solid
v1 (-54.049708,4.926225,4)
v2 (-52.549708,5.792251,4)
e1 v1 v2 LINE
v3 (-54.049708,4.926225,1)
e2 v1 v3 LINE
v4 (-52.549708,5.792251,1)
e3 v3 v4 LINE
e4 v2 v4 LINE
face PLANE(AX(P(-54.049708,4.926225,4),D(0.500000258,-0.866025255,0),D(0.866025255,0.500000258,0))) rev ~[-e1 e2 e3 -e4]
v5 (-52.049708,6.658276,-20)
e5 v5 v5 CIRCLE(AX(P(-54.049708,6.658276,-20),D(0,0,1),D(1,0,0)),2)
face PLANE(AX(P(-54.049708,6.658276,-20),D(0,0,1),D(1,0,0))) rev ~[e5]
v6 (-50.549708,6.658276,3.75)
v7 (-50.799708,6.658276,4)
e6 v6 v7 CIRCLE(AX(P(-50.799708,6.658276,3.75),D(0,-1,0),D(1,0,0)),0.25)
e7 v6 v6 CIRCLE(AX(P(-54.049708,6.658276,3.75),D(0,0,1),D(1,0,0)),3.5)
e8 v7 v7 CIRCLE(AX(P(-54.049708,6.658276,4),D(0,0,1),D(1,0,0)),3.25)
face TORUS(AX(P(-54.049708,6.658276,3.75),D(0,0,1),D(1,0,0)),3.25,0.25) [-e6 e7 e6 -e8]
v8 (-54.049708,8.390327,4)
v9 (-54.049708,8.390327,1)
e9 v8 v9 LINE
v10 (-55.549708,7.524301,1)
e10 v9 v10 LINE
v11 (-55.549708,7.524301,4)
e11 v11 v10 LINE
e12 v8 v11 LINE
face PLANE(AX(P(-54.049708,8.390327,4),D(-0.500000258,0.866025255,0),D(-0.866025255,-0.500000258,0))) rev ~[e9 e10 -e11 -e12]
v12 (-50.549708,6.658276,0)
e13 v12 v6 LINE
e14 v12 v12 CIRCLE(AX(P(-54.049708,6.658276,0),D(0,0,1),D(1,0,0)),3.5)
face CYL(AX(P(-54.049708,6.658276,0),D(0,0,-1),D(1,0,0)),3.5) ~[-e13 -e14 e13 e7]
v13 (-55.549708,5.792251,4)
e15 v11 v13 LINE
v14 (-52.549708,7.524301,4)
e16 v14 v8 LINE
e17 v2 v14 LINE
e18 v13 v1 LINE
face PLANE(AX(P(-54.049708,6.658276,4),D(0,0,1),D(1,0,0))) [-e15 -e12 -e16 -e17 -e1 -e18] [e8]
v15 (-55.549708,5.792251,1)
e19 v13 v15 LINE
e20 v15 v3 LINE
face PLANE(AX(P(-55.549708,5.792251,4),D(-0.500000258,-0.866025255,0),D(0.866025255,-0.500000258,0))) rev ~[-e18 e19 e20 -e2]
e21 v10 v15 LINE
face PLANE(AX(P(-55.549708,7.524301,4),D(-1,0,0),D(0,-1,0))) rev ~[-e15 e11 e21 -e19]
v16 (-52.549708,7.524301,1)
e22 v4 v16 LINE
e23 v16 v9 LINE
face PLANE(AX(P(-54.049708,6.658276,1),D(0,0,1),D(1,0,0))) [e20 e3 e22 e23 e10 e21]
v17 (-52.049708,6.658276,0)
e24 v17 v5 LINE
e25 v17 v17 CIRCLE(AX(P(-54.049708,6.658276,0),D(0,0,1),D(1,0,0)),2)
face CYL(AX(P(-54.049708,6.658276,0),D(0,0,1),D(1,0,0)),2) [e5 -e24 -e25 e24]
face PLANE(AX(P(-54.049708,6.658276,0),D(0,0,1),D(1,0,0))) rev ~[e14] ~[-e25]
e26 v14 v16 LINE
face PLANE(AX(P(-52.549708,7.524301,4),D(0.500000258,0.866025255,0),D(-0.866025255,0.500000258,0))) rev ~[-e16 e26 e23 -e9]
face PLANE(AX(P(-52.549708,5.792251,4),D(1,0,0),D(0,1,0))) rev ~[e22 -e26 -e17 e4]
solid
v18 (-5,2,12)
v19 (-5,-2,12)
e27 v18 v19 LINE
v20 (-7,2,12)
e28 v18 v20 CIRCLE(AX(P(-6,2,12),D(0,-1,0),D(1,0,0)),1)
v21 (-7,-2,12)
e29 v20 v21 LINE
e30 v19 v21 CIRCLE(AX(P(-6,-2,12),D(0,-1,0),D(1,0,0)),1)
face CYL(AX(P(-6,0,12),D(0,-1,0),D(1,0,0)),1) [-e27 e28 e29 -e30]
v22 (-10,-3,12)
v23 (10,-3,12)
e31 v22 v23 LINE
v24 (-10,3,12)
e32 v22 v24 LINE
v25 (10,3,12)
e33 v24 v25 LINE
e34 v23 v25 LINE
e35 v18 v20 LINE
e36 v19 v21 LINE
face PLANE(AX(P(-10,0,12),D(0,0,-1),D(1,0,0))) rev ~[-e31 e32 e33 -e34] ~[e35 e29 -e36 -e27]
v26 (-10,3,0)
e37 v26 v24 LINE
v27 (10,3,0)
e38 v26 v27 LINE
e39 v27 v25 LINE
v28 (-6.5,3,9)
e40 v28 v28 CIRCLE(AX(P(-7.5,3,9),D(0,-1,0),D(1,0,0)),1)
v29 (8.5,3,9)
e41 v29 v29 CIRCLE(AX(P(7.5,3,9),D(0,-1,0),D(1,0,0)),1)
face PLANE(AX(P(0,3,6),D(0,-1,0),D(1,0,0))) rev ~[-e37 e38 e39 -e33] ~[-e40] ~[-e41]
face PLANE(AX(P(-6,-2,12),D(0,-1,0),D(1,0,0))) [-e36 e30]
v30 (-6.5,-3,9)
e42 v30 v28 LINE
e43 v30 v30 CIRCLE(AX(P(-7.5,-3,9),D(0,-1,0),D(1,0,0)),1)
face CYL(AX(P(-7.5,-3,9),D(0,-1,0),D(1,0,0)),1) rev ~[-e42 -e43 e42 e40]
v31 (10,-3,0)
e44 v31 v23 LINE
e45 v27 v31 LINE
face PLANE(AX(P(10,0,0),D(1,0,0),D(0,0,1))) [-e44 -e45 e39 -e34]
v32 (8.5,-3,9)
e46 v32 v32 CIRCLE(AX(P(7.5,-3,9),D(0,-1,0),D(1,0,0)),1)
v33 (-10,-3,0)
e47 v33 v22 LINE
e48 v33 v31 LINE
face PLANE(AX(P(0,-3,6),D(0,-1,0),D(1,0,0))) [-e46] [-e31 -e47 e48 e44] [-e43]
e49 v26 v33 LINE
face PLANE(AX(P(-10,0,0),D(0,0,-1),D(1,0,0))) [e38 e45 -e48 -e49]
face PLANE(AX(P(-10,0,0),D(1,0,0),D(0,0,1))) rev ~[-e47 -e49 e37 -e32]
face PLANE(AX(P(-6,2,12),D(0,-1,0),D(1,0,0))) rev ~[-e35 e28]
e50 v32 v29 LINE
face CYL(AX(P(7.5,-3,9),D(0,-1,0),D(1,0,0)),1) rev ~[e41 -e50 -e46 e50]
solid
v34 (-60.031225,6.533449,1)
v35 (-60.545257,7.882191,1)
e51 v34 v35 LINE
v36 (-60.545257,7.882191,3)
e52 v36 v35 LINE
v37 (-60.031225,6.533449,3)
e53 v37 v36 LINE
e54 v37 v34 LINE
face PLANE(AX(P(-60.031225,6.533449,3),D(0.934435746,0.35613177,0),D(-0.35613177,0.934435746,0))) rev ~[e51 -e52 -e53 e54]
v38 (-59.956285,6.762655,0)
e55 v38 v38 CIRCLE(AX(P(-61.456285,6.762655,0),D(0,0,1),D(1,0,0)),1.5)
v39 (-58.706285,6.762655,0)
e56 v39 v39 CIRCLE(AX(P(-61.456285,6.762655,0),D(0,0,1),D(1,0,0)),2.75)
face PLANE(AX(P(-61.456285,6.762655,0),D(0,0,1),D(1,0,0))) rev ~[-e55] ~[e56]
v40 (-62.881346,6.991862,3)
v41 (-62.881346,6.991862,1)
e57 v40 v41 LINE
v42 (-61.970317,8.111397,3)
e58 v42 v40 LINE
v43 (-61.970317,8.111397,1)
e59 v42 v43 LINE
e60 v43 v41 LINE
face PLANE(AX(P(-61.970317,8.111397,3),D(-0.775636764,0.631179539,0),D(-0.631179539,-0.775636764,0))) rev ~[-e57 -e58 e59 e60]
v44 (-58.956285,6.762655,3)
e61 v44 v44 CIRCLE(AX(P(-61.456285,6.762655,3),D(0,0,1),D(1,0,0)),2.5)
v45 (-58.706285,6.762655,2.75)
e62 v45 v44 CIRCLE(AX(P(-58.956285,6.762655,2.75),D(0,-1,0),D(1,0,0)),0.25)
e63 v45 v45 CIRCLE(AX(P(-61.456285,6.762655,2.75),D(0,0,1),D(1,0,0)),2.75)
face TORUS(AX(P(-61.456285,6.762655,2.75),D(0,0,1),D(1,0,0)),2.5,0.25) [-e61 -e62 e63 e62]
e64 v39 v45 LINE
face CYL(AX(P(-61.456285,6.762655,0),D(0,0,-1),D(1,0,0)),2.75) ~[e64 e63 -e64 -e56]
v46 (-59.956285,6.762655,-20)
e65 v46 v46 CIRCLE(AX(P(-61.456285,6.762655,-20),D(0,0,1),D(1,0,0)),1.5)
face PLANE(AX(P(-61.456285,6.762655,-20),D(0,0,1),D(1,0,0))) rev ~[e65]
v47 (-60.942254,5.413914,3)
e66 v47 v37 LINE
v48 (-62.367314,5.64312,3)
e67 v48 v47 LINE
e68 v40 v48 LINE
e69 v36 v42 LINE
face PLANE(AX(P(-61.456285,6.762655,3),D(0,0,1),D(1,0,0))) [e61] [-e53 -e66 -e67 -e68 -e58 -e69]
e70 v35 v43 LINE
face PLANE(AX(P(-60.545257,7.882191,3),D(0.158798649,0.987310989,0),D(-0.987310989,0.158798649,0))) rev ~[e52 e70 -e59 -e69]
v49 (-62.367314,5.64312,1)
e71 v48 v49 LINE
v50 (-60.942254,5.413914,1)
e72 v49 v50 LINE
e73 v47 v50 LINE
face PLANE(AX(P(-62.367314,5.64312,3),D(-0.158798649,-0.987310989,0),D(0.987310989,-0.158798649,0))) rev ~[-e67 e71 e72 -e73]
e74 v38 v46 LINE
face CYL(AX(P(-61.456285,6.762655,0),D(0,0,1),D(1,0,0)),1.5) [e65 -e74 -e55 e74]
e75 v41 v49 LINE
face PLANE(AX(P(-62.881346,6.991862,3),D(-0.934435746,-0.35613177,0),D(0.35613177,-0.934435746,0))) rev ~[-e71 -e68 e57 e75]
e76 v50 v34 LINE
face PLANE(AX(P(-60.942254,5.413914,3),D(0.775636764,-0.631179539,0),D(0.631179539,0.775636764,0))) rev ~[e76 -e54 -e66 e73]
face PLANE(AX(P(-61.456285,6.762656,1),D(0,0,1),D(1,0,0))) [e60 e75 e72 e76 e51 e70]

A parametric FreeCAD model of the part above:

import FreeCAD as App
import Part
import Sketcher
from FreeCAD import Vector
Q = App.Units.Quantity


def edges_at(feature, points):
    """Names of the edges that pass closest to the given points."""
    edges = feature.Shape.Edges
    near = lambda p: min(range(len(edges)), key=lambda i: edges[i].distToShape(Part.Vertex(*p))[0])
    return sorted({f"Edge{near(p) + 1}" for p in points})


def add_polygon(sketch, points):
    """Adds a closed chain of lines whose ends are joined by coincident constraints."""
    first, n = sketch.GeometryCount, len(points)
    for a, b in zip(points, points[1:] + points[:1]):
        sketch.addGeometry(Part.LineSegment(App.Vector(*a, 0), App.Vector(*b, 0)), False)
    for i in range(n):
        sketch.addConstraint(Sketcher.Constraint("Coincident", first + i, 2, first + (i + 1) % n, 1))

doc = App.newDocument("Part")
body = doc.addObject("PartDesign::Body", "Body")

# Sketch on XZ plane
sketch1 = doc.addObject("Sketcher::SketchObject", "Sketch")
body.addObject(sketch1)
sketch1.AttachmentSupport = (doc.XZ_Plane, [""])
sketch1.MapMode = "FlatFace"
add_polygon(sketch1, [(-10, 12), (-10, 0), (10, 0), (10, 12)])  # lines 0-3
sketch1.addConstraint(Sketcher.Constraint("Vertical", 0))
sketch1.addConstraint(Sketcher.Constraint("Horizontal", 1))
sketch1.addConstraint(Sketcher.Constraint("Vertical", 2))
sketch1.addConstraint(Sketcher.Constraint("Horizontal", 3))
sketch1.addConstraint(Sketcher.Constraint("Symmetric", 0, 2, 1, 2, -1, 1))
sketch1.addConstraint(Sketcher.Constraint("DistanceX", 1, 1, 1, 2, Q("20 mm")))
sketch1.addConstraint(Sketcher.Constraint("DistanceY", 0, 2, 0, 1, Q("12 mm")))
pad1 = doc.addObject("PartDesign::Pad", "Pad")
body.addObject(pad1)
pad1.Profile = sketch1
pad1.Length = 6
pad1.Midplane = True

# Sketch on XZ plane
sketch2 = doc.addObject("Sketcher::SketchObject", "Sketch001")
body.addObject(sketch2)
sketch2.AttachmentSupport = (doc.XZ_Plane, [""])
sketch2.MapMode = "FlatFace"
sketch2.addGeometry(Part.Circle(Vector(-6, 12, 0), Vector(0, 0, 1), 1), False)
sketch2.addConstraint(Sketcher.Constraint("Diameter", 0, Q("2 mm")))
sketch2.addConstraint(Sketcher.Constraint("DistanceX", 0, 3, -1, 1, Q("6 mm")))
sketch2.addConstraint(Sketcher.Constraint("DistanceY", -1, 1, 0, 3, Q("12 mm")))
pad2 = doc.addObject("PartDesign::Pad", "Pad001")
body.addObject(pad2)
pad2.Profile = sketch2
pad2.Length = 4
pad2.Midplane = True

# Sketch on XZ plane
sketch3 = doc.addObject("Sketcher::SketchObject", "Sketch002")
body.addObject(sketch3)
sketch3.AttachmentSupport = (doc.XZ_Plane, [""])
sketch3.MapMode = "FlatFace"
sketch3.AttachmentOffset = App.Placement(Vector(0, 0, 3), App.Rotation())
sketch3.addGeometry(Part.Circle(Vector(-7.5, 9, 0), Vector(0, 0, 1), 1), False)
sketch3.addGeometry(Part.Circle(Vector(7.5, 9, 0), Vector(0, 0, 1), 1), False)
sketch3.addConstraint(Sketcher.Constraint("Equal", 0, 1))
sketch3.addConstraint(Sketcher.Constraint("Symmetric", 0, 3, 1, 3, -2))
sketch3.addConstraint(Sketcher.Constraint("Diameter", 0, Q("2 mm")))
sketch3.addConstraint(Sketcher.Constraint("DistanceY", -1, 1, 0, 3, Q("9 mm")))
sketch3.addConstraint(Sketcher.Constraint("DistanceX", 0, 3, 1, 3, Q("15 mm")))
pocket1 = doc.addObject("PartDesign::Pocket", "Pocket")
body.addObject(pocket1)
pocket1.Profile = sketch3
pocket1.Type = "ThroughAll"
body2 = doc.addObject("PartDesign::Body", "Body001")

# Sketch on XY plane
sketch4 = doc.addObject("Sketcher::SketchObject", "Sketch003")
body2.addObject(sketch4)
sketch4.AttachmentSupport = (doc.getObject("XY_Plane001"), [""])
sketch4.MapMode = "FlatFace"
sketch4.addGeometry(Part.Circle(Vector(-61.456285, 6.762655, 0), Vector(0, 0, 1), 1.5), False)
sketch4.addConstraint(Sketcher.Constraint("Diameter", 0, Q("3 mm")))
sketch4.addConstraint(Sketcher.Constraint("DistanceX", 0, 3, -1, 1, Q("61.456285 mm")))
sketch4.addConstraint(Sketcher.Constraint("DistanceY", -1, 1, 0, 3, Q("6.762655 mm")))
pad3 = doc.addObject("PartDesign::Pad", "Pad002")
body2.addObject(pad3)
pad3.Profile = sketch4
pad3.Length = 20
pad3.Reversed = True

# Sketch on XY plane
sketch5 = doc.addObject("Sketcher::SketchObject", "Sketch004")
body2.addObject(sketch5)
sketch5.AttachmentSupport = (doc.getObject("XY_Plane001"), [""])
sketch5.MapMode = "FlatFace"
sketch5.addGeometry(Part.Circle(Vector(-61.456285, 6.762655, 0), Vector(0, 0, 1), 2.75), False)
sketch5.addConstraint(Sketcher.Constraint("Diameter", 0, Q("5.5 mm")))
sketch5.addConstraint(Sketcher.Constraint("DistanceX", 0, 3, -1, 1, Q("61.456285 mm")))
sketch5.addConstraint(Sketcher.Constraint("DistanceY", -1, 1, 0, 3, Q("6.762655 mm")))
pad4 = doc.addObject("PartDesign::Pad", "Pad003")
body2.addObject(pad4)
pad4.Profile = sketch5
pad4.Length = 3

# Sketch on XY plane
sketch6 = doc.addObject("Sketcher::SketchObject", "Sketch005")
body2.addObject(sketch6)
sketch6.AttachmentSupport = (doc.getObject("XY_Plane001"), [""])
sketch6.MapMode = "FlatFace"
sketch6.AttachmentOffset = App.Placement(Vector(0, 0, 3), App.Rotation())
add_polygon(sketch6, [(-60.942254, 5.413914), (-60.031225, 6.533449), (-60.545257, 7.882191), (-61.970317, 8.111397), (-62.881346, 6.991862), (-62.367314, 5.64312)])  # lines 0-5
sketch6.addConstraint(Sketcher.Constraint("Parallel", 0, 3))
sketch6.addConstraint(Sketcher.Constraint("Parallel", 1, 4))
sketch6.addConstraint(Sketcher.Constraint("Parallel", 2, 5))
sketch6.addConstraint(Sketcher.Constraint("Equal", 0, 1))
sketch6.addConstraint(Sketcher.Constraint("Equal", 1, 2))
sketch6.addConstraint(Sketcher.Constraint("Equal", 2, 3))
sketch6.addConstraint(Sketcher.Constraint("DistanceY", -1, 1, 0, 2, Q("6.533449 mm")))
sketch6.addConstraint(Sketcher.Constraint("DistanceY", -1, 1, 1, 2, Q("7.882191 mm")))
sketch6.addConstraint(Sketcher.Constraint("DistanceY", -1, 1, 4, 2, Q("5.64312 mm")))
sketch6.addConstraint(Sketcher.Constraint("DistanceX", 2, 2, 1, 2, Q("1.42506 mm")))
sketch6.addConstraint(Sketcher.Constraint("DistanceY", 0, 2, 2, 2, Q("1.577948 mm")))
sketch6.addConstraint(Sketcher.Constraint("DistanceX", 0, 2, -1, 1, Q("60.031225 mm")))
pocket2 = doc.addObject("PartDesign::Pocket", "Pocket001")
body2.addObject(pocket2)
pocket2.Profile = sketch6
pocket2.Length = 2
doc.recompute()

fillet = doc.addObject("PartDesign::Fillet", "Fillet")
body2.addObject(fillet)
fillet.Base = (pocket2, edges_at(pocket2, [(-64.206, 6.763, 3)]))
fillet.Radius = 0.25
body3 = doc.addObject("PartDesign::Body", "Body002")

# Sketch on XY plane
sketch7 = doc.addObject("Sketcher::SketchObject", "Sketch006")
body3.addObject(sketch7)
sketch7.AttachmentSupport = (doc.getObject("XY_Plane002"), [""])
sketch7.MapMode = "FlatFace"
sketch7.addGeometry(Part.Circle(Vector(-54.049708, 6.658276, 0), Vector(0, 0, 1), 2), False)
sketch7.addConstraint(Sketcher.Constraint("Diameter", 0, Q("4 mm")))
sketch7.addConstraint(Sketcher.Constraint("DistanceX", 0, 3, -1, 1, Q("54.049708 mm")))
sketch7.addConstraint(Sketcher.Constraint("DistanceY", -1, 1, 0, 3, Q("6.658276 mm")))
pad5 = doc.addObject("PartDesign::Pad", "Pad004")
body3.addObject(pad5)
pad5.Profile = sketch7
pad5.Length = 20
pad5.Reversed = True

# Sketch on XY plane
sketch8 = doc.addObject("Sketcher::SketchObject", "Sketch007")
body3.addObject(sketch8)
sketch8.AttachmentSupport = (doc.getObject("XY_Plane002"), [""])
sketch8.MapMode = "FlatFace"
sketch8.addGeometry(Part.Circle(Vector(-54.049708, 6.658276, 0), Vector(0, 0, 1), 3.5), False)
sketch8.addConstraint(Sketcher.Constraint("Diameter", 0, Q("7 mm")))
sketch8.addConstraint(Sketcher.Constraint("DistanceX", 0, 3, -1, 1, Q("54.049708 mm")))
sketch8.addConstraint(Sketcher.Constraint("DistanceY", -1, 1, 0, 3, Q("6.658276 mm")))
pad6 = doc.addObject("PartDesign::Pad", "Pad005")
body3.addObject(pad6)
pad6.Profile = sketch8
pad6.Length = 4

# Sketch on XY plane
sketch9 = doc.addObject("Sketcher::SketchObject", "Sketch008")
body3.addObject(sketch9)
sketch9.AttachmentSupport = (doc.getObject("XY_Plane002"), [""])
sketch9.MapMode = "FlatFace"
sketch9.AttachmentOffset = App.Placement(Vector(0, 0, 4), App.Rotation())
add_polygon(sketch9, [(-52.549708, 5.792251), (-52.549708, 7.524301), (-54.049708, 8.390327), (-55.549708, 7.524301), (-55.549708, 5.792251), (-54.049708, 4.926225)])  # lines 0-5
sketch9.addConstraint(Sketcher.Constraint("Vertical", 0))
sketch9.addConstraint(Sketcher.Constraint("Vertical", 3))
sketch9.addConstraint(Sketcher.Constraint("Parallel", 1, 4))
sketch9.addConstraint(Sketcher.Constraint("Parallel", 2, 5))
sketch9.addConstraint(Sketcher.Constraint("Horizontal", 0, 2, 2, 2))
sketch9.addConstraint(Sketcher.Constraint("Horizontal", 3, 2, 5, 2))
sketch9.addConstraint(Sketcher.Constraint("Vertical", 1, 2, 4, 2))
sketch9.addConstraint(Sketcher.Constraint("Angle", 1, Q("149.999983 deg")))
sketch9.addConstraint(Sketcher.Constraint("DistanceX", 2, 2, 0, 2, Q("3 mm")))
sketch9.addConstraint(Sketcher.Constraint("DistanceY", 0, 1, 0, 2, Q("1.73205 mm")))
sketch9.addConstraint(Sketcher.Constraint("DistanceY", -1, 1, 0, 2, Q("7.524301 mm")))
sketch9.addConstraint(Sketcher.Constraint("DistanceX", 0, 2, -1, 1, Q("52.549708 mm")))
pocket3 = doc.addObject("PartDesign::Pocket", "Pocket002")
body3.addObject(pocket3)
pocket3.Profile = sketch9
pocket3.Length = 3
doc.recompute()

fillet2 = doc.addObject("PartDesign::Fillet", "Fillet001")
body3.addObject(fillet2)
fillet2.Base = (pocket3, edges_at(pocket3, [(-57.55, 6.658, 4)]))
fillet2.Radius = 0.25

doc.recompute()
